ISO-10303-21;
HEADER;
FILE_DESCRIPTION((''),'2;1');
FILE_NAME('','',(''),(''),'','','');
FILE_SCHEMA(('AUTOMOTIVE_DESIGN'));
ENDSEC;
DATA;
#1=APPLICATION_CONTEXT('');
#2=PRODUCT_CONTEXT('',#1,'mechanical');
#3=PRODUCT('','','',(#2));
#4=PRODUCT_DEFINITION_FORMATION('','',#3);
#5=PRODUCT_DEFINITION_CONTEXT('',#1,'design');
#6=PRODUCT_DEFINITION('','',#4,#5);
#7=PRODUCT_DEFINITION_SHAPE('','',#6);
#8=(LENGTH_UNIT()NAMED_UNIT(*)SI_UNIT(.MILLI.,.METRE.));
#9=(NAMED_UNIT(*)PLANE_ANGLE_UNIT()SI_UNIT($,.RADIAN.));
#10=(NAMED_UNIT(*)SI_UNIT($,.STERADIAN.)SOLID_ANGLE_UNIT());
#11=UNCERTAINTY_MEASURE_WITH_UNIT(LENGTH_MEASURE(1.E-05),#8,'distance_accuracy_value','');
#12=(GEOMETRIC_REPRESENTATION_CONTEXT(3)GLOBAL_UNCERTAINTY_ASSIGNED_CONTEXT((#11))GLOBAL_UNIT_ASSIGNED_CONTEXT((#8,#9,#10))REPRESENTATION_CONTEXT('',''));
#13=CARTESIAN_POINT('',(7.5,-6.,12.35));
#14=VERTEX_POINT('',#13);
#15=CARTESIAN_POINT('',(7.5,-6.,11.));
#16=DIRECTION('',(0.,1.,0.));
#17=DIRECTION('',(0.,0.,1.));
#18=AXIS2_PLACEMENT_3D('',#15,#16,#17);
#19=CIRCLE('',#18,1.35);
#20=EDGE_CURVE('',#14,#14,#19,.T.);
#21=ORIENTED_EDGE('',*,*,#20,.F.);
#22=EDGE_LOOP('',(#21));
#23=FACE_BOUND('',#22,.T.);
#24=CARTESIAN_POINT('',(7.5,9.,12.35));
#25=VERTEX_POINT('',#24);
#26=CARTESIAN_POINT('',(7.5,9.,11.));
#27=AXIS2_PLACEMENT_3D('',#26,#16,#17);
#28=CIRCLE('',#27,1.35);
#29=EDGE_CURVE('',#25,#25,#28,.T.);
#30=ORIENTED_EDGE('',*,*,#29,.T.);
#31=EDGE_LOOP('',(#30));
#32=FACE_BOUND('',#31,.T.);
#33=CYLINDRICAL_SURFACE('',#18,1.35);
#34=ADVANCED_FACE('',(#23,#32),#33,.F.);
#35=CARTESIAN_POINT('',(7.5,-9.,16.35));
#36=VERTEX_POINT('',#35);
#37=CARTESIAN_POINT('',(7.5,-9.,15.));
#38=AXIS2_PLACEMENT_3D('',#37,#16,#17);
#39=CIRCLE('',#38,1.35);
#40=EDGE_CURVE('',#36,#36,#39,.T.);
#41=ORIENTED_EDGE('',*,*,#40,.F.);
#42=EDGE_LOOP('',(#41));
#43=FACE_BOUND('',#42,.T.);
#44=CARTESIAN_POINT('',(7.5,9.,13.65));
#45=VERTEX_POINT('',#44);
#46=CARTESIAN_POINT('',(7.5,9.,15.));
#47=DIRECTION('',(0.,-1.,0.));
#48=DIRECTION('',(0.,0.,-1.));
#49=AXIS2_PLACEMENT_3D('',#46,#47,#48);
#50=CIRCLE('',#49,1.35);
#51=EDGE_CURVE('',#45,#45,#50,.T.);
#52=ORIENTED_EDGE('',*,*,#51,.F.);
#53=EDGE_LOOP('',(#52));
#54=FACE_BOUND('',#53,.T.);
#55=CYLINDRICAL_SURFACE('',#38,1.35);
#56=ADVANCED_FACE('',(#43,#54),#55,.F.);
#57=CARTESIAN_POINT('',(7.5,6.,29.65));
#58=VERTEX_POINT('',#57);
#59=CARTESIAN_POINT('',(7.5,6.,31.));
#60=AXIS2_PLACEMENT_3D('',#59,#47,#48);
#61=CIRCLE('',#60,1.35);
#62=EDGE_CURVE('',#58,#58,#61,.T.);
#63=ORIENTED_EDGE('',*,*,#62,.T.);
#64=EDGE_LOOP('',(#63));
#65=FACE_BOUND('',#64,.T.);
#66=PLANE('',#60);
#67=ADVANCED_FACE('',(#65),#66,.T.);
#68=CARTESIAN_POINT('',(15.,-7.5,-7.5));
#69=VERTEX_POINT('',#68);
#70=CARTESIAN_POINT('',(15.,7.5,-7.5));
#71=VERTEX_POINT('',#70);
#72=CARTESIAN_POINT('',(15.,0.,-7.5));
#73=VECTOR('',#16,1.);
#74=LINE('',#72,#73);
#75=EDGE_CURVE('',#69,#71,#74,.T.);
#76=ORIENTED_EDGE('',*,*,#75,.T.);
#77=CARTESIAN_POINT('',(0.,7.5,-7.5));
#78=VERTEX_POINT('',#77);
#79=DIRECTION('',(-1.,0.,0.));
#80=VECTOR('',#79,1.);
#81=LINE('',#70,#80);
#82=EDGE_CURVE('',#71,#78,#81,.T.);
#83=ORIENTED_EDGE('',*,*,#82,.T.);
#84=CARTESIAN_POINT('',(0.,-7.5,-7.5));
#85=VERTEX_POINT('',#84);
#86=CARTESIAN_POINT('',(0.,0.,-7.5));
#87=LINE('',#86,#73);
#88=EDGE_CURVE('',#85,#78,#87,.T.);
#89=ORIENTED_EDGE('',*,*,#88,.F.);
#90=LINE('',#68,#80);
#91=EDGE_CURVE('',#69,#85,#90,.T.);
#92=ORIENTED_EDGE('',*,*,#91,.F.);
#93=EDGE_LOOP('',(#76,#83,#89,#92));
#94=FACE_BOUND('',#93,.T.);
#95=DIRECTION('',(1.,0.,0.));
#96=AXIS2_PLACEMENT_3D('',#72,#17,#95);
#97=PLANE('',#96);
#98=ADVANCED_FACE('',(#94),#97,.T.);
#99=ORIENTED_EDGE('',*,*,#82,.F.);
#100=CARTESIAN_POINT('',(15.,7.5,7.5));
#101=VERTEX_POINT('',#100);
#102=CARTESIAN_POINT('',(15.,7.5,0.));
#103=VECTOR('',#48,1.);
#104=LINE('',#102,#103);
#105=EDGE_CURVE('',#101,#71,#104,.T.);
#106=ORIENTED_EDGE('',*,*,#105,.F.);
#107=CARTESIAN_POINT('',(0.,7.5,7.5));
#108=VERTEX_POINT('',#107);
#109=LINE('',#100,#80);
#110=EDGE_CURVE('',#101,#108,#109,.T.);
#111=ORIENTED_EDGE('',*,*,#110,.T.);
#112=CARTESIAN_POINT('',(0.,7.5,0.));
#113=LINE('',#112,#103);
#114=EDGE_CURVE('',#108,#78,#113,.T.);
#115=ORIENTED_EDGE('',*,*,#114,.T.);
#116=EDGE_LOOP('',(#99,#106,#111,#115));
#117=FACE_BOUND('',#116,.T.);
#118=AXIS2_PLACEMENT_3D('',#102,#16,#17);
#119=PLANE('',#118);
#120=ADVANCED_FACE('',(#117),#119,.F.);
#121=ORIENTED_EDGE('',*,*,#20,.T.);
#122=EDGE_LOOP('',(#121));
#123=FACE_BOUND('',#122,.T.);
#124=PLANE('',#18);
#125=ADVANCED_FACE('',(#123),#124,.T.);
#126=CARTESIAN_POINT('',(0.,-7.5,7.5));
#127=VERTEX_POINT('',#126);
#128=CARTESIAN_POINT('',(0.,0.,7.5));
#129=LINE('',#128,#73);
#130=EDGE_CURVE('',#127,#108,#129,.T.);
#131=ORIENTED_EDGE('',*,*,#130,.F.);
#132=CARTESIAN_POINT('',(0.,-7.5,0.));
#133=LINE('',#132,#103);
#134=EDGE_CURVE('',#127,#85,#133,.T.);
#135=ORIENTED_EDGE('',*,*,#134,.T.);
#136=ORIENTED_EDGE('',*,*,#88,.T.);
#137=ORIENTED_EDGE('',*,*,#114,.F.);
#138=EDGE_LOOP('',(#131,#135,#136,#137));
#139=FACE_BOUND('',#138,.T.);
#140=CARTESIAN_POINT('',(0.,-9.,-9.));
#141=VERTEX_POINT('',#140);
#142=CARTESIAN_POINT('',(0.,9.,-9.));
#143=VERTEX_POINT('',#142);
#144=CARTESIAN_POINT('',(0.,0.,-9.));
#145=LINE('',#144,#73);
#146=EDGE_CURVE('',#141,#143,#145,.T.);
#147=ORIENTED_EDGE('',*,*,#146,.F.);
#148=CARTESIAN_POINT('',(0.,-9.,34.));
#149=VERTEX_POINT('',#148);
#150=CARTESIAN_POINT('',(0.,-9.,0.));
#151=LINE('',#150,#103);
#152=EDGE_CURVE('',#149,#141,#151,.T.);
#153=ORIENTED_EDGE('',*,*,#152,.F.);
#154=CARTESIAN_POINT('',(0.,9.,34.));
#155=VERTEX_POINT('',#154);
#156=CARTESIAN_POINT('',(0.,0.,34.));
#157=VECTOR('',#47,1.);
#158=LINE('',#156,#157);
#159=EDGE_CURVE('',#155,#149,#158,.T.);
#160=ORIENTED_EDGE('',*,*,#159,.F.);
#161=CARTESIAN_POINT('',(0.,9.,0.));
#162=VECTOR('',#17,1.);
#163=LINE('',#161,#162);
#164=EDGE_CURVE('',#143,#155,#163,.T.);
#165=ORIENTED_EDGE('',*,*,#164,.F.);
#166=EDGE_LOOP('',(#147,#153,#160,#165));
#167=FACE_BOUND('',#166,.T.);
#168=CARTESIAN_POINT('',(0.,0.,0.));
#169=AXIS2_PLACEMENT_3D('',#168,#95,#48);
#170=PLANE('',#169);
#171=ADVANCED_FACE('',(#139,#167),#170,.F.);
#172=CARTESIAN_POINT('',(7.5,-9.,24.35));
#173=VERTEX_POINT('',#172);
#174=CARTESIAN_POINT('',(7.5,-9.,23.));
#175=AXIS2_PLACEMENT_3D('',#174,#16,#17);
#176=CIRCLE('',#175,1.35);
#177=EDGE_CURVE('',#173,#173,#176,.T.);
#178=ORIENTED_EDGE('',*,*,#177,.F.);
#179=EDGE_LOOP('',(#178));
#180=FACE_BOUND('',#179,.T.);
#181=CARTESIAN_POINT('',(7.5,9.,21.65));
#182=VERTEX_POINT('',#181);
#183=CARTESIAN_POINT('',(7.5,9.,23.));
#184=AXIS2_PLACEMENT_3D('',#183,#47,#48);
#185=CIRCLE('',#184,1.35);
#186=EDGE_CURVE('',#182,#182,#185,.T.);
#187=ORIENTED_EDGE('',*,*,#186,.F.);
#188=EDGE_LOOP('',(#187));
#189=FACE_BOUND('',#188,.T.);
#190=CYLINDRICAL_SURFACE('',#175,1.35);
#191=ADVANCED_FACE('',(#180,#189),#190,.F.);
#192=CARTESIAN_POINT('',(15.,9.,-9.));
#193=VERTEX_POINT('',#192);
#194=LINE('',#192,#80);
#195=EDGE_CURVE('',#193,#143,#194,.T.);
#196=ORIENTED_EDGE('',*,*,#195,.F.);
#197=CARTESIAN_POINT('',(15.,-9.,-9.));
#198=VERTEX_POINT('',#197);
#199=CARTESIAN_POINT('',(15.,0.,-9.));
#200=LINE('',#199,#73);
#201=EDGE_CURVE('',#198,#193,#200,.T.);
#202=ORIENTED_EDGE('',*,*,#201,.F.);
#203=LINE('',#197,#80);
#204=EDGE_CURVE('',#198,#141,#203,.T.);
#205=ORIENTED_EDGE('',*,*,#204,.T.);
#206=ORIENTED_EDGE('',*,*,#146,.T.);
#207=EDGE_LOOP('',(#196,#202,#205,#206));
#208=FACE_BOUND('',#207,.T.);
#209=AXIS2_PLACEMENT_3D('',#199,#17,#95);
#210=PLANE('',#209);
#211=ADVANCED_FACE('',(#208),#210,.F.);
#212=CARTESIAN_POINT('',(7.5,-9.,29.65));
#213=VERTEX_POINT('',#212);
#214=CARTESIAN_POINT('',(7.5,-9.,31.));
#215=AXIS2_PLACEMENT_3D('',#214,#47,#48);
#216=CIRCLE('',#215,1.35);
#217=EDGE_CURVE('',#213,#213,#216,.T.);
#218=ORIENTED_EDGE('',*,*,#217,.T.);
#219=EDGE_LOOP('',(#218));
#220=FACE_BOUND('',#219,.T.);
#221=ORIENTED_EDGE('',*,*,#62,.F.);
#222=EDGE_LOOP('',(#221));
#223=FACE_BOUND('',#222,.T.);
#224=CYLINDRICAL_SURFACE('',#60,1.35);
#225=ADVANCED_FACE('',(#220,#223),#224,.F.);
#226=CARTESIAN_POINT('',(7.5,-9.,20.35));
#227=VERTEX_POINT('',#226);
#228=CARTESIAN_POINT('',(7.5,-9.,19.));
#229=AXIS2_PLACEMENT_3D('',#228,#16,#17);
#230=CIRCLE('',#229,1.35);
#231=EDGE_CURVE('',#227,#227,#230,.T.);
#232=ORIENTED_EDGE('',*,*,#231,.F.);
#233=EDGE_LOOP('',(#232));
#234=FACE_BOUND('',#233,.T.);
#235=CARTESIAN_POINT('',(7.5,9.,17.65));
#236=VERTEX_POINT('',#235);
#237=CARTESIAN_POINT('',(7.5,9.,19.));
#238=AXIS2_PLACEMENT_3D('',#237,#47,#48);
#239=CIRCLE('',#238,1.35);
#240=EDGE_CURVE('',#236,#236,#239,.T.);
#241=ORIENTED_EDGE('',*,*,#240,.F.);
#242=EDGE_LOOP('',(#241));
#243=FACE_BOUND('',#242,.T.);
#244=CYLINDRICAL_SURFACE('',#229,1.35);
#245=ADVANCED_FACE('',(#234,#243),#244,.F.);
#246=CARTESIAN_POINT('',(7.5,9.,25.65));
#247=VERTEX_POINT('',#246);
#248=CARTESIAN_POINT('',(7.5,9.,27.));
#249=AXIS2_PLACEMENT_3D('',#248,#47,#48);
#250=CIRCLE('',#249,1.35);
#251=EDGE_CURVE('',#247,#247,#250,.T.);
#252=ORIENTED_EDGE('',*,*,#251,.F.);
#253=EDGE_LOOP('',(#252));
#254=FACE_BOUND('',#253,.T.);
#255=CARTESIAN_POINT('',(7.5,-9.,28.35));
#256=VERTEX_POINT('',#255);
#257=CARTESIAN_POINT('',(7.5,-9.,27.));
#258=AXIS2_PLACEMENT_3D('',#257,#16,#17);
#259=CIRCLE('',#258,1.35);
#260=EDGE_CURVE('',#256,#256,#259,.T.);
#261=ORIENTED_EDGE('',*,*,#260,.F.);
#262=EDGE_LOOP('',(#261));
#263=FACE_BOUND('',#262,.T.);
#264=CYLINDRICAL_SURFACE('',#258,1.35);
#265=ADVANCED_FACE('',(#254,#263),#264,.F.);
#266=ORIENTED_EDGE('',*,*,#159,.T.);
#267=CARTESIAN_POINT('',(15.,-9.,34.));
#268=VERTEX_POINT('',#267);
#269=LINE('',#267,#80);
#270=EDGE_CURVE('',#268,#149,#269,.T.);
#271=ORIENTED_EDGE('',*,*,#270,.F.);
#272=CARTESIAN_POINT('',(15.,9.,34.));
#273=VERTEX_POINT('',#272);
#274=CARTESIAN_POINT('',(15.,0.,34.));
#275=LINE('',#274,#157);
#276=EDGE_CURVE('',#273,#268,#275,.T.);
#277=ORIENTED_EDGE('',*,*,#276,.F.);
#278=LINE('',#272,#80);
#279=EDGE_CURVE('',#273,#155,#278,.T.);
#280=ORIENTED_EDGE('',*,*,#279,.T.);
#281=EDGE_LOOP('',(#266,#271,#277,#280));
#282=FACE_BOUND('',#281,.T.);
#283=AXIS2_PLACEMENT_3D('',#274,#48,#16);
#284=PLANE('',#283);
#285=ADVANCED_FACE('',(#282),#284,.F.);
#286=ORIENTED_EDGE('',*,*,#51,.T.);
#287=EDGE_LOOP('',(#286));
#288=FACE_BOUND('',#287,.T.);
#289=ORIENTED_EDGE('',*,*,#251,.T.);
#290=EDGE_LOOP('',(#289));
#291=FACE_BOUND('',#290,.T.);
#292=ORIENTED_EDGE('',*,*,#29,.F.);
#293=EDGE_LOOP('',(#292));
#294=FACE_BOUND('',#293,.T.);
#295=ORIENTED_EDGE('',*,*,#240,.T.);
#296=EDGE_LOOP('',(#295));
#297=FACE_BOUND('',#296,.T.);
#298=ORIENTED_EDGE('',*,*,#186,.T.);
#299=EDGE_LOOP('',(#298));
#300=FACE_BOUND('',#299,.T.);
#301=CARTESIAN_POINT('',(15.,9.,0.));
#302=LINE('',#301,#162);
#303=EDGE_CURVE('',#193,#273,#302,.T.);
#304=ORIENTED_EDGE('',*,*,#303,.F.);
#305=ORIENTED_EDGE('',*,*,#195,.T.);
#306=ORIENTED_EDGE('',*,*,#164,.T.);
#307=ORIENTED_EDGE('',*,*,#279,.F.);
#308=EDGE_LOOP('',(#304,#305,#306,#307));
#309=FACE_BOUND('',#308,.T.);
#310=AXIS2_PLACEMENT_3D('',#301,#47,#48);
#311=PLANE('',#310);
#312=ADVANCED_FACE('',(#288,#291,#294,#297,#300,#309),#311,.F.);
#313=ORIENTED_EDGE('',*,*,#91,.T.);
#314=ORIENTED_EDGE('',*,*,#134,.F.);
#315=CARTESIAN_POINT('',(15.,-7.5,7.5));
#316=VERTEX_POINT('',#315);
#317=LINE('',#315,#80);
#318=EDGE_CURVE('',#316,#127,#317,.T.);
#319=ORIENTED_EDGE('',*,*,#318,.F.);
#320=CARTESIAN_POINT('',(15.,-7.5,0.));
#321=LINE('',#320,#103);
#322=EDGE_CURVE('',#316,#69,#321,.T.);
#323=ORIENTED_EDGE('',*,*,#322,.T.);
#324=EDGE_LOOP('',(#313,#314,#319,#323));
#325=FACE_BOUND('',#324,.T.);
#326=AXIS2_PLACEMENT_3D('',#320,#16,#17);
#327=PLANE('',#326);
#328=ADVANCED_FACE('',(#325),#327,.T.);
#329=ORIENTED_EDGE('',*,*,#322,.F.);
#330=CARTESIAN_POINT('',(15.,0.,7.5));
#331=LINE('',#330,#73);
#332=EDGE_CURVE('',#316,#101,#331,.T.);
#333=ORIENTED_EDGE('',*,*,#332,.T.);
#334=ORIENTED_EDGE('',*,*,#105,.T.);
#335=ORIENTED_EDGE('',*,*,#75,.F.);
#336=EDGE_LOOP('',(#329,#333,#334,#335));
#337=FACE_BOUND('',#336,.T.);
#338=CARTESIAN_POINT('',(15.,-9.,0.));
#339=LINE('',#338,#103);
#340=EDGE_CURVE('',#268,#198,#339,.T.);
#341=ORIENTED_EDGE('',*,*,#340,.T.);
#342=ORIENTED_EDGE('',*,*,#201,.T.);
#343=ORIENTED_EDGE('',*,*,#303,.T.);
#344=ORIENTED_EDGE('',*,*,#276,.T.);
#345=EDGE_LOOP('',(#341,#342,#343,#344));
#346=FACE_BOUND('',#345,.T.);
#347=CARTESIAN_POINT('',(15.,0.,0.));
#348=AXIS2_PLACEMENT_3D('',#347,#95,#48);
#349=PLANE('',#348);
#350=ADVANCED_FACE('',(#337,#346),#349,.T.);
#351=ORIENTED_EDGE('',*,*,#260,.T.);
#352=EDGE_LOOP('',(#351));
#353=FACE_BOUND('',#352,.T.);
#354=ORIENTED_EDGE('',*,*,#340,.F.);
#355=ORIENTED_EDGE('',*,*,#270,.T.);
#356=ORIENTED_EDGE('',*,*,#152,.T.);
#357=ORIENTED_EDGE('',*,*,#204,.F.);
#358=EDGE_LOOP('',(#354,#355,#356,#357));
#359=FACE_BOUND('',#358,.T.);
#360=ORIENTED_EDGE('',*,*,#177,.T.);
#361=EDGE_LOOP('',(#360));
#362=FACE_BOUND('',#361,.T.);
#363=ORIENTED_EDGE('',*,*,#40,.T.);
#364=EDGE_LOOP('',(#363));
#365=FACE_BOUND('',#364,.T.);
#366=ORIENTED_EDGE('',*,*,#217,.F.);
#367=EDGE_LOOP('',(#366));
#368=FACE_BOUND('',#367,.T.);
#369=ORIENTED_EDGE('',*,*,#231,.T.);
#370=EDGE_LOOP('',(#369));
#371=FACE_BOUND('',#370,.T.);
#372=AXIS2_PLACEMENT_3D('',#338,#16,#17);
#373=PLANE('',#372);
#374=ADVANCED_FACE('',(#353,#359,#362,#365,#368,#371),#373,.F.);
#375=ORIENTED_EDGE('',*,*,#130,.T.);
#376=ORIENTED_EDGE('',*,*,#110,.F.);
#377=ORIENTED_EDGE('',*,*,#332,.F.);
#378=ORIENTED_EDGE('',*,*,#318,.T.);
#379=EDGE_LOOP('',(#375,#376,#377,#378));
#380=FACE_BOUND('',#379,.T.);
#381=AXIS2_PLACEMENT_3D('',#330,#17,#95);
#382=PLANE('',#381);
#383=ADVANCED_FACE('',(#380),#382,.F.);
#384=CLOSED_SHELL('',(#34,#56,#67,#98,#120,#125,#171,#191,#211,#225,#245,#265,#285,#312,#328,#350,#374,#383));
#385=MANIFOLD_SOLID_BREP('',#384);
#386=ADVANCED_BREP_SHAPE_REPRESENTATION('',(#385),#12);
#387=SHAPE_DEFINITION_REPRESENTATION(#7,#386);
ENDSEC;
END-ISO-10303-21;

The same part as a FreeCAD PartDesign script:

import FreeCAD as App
import Part
import Sketcher

V = App.Vector


def add_polygon(sketch, points):
    """Adds a closed chain of lines whose ends are joined by coincident constraints."""
    first, n = sketch.GeometryCount, len(points)
    for a, b in zip(points, points[1:] + points[:1]):
        sketch.addGeometry(Part.LineSegment(App.Vector(*a, 0), App.Vector(*b, 0)), False)
    for i in range(n):
        sketch.addConstraint(Sketcher.Constraint("Coincident", first + i, 2, first + (i + 1) % n, 1))

doc = App.newDocument("Part")
body = doc.addObject("PartDesign::Body", "Body")

sketch1 = body.newObject("Sketcher::SketchObject", "Sketch")
sketch1.AttachmentSupport = (doc.getObject("YZ_Plane"), [""])
sketch1.MapMode = "FlatFace"
add_polygon(sketch1, [(9, 34), (-9, 34), (-9, -9), (9, -9)])
add_polygon(sketch1, [(-8, 8), (8, 8), (8, -8), (-8, -8)])
sketch1.addConstraint(Sketcher.Constraint("Horizontal", 0))
sketch1.addConstraint(Sketcher.Constraint("Vertical", 1))
sketch1.addConstraint(Sketcher.Constraint("Horizontal", 2))
sketch1.addConstraint(Sketcher.Constraint("Vertical", 3))
sketch1.addConstraint(Sketcher.Constraint("Horizontal", 4))
sketch1.addConstraint(Sketcher.Constraint("Vertical", 5))
sketch1.addConstraint(Sketcher.Constraint("Horizontal", 6))
sketch1.addConstraint(Sketcher.Constraint("Vertical", 7))
sketch1.addConstraint(Sketcher.Constraint("Symmetric", 4, 2, 6, 2, -1, 1))
sketch1.addConstraint(Sketcher.Constraint("Equal", 6, 5))
sketch1.addConstraint(Sketcher.Constraint("DistanceX", 0, 2, 0, 1, 18.0))
sketch1.addConstraint(Sketcher.Constraint("DistanceX", 4, 1, 4, 2, 15.0))
sketch1.addConstraint(Sketcher.Constraint("DistanceY", 1, 2, 1, 1, 43.0))
sketch1.addConstraint(Sketcher.Constraint("DistanceX", 0, 2, -1, 1, 9.0))
sketch1.addConstraint(Sketcher.Constraint("DistanceY", -1, 1, 0, 2, 34.0))
pad1 = body.newObject("PartDesign::Pad", "Pad")
pad1.Profile = sketch1
pad1.Length = 15

sketch2 = body.newObject("Sketcher::SketchObject", "Sketch001")
sketch2.AttachmentSupport = (doc.getObject("XZ_Plane"), [""])
sketch2.MapMode = "FlatFace"
sketch2.AttachmentOffset = App.Placement(V(0, 0, -9), App.Rotation())
sketch2.addGeometry(Part.Circle(V(7.5, 27, 0), V(0, 0, 1), 1.4), False)
sketch2.addGeometry(Part.Circle(V(7.5, 23, 0), V(0, 0, 1), 1.4), False)
sketch2.addGeometry(Part.Circle(V(7.5, 19, 0), V(0, 0, 1), 1.4), False)
sketch2.addGeometry(Part.Circle(V(7.5, 15, 0), V(0, 0, 1), 1.4), False)
sketch2.addConstraint(Sketcher.Constraint("Equal", 0, 1))
sketch2.addConstraint(Sketcher.Constraint("Equal", 1, 2))
sketch2.addConstraint(Sketcher.Constraint("Equal", 2, 3))
sketch2.addConstraint(Sketcher.Constraint("Vertical", 0, 3, 1, 3))
sketch2.addConstraint(Sketcher.Constraint("Vertical", 1, 3, 2, 3))
sketch2.addConstraint(Sketcher.Constraint("Vertical", 2, 3, 3, 3))
sketch2.addConstraint(Sketcher.Constraint("Diameter", 0, 2.7))
sketch2.addConstraint(Sketcher.Constraint("DistanceY", -1, 1, 0, 3, 27.0))
sketch2.addConstraint(Sketcher.Constraint("DistanceY", -1, 1, 1, 3, 23.0))
sketch2.addConstraint(Sketcher.Constraint("DistanceY", -1, 1, 2, 3, 19.0))
sketch2.addConstraint(Sketcher.Constraint("DistanceY", -1, 1, 3, 3, 15.0))
sketch2.addConstraint(Sketcher.Constraint("DistanceX", -1, 1, 0, 3, 7.5))
pocket1 = body.newObject("PartDesign::Pocket", "Pocket")
pocket1.Profile = sketch2
pocket1.Type = "ThroughAll"
pocket1.Midplane = True

sketch3 = body.newObject("Sketcher::SketchObject", "Sketch002")
sketch3.AttachmentSupport = (doc.getObject("XZ_Plane"), [""])
sketch3.MapMode = "FlatFace"
sketch3.AttachmentOffset = App.Placement(V(0, 0, -9), App.Rotation())
sketch3.addGeometry(Part.Circle(V(7.5, 11, 0), V(0, 0, 1), 1.4), False)
sketch3.addConstraint(Sketcher.Constraint("Diameter", 0, 2.7))
sketch3.addConstraint(Sketcher.Constraint("DistanceY", -1, 1, 0, 3, 11.0))
sketch3.addConstraint(Sketcher.Constraint("DistanceX", -1, 1, 0, 3, 7.5))
pocket2 = body.newObject("PartDesign::Pocket", "Pocket001")
pocket2.Profile = sketch3
pocket2.Length = 15
pocket2.Reversed = True

sketch4 = body.newObject("Sketcher::SketchObject", "Sketch003")
sketch4.AttachmentSupport = (doc.getObject("XZ_Plane"), [""])
sketch4.MapMode = "FlatFace"
sketch4.AttachmentOffset = App.Placement(V(0, 0, 9), App.Rotation())
sketch4.addGeometry(Part.Circle(V(7.5, 31, 0), V(0, 0, 1), 1.4), False)
sketch4.addConstraint(Sketcher.Constraint("Diameter", 0, 2.7))
sketch4.addConstraint(Sketcher.Constraint("DistanceY", -1, 1, 0, 3, 31.0))
sketch4.addConstraint(Sketcher.Constraint("DistanceX", -1, 1, 0, 3, 7.5))
pocket3 = body.newObject("PartDesign::Pocket", "Pocket002")
pocket3.Profile = sketch4
pocket3.Length = 15

doc.recompute()
